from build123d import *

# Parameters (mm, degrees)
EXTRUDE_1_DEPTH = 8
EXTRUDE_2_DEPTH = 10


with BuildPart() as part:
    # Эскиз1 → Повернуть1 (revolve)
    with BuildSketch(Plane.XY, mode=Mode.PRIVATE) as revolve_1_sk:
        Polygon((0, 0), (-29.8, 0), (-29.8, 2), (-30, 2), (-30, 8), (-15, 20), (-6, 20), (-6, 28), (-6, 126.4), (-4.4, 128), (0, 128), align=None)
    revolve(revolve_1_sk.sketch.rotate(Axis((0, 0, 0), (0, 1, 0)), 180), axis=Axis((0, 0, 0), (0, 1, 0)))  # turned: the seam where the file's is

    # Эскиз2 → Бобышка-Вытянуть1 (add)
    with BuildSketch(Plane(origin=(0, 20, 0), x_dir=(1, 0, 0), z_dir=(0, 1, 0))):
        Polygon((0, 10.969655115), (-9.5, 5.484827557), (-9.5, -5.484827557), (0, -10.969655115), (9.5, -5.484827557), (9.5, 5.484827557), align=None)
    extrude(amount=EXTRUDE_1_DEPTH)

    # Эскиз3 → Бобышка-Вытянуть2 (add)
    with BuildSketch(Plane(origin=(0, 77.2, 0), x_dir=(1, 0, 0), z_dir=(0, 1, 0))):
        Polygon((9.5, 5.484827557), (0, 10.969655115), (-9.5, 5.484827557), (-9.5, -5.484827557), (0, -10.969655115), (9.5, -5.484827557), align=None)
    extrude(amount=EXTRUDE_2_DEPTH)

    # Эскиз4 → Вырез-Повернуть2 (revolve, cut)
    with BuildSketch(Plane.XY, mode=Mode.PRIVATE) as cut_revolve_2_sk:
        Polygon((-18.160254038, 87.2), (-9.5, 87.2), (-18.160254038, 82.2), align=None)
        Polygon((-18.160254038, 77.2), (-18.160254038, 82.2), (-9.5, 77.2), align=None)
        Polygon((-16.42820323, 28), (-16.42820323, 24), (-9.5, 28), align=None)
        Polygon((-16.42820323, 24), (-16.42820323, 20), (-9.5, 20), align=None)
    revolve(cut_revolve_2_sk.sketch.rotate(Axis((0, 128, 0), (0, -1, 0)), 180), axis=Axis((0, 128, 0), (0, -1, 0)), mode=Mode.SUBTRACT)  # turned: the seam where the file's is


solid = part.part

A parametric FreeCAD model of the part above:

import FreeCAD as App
import Part
import Sketcher
Q = App.Units.Quantity


def add_polygon(sketch, points):
    """Adds a closed chain of lines whose ends are joined by coincident constraints."""
    first, n = sketch.GeometryCount, len(points)
    for a, b in zip(points, points[1:] + points[:1]):
        sketch.addGeometry(Part.LineSegment(App.Vector(*a, 0), App.Vector(*b, 0)), False)
    for i in range(n):
        sketch.addConstraint(Sketcher.Constraint("Coincident", first + i, 2, first + (i + 1) % n, 1))

doc = App.newDocument("Part")
body = doc.addObject("PartDesign::Body", "Body")

sketch1 = body.newObject("Sketcher::SketchObject", "Sketch")
sketch1.AttachmentSupport = (doc.getObject("XY_Plane"), [""])
sketch1.MapMode = "FlatFace"
add_polygon(sketch1, [(-29.8, 0), (0, 0), (0, 128), (-4.4, 128), (-6, 126.4), (-6, 20), (-15, 20), (-30, 8), (-30, 2), (-29.8, 2)])
sketch1.addConstraint(Sketcher.Constraint("Horizontal", 0))
sketch1.addConstraint(Sketcher.Constraint("Vertical", 1))
sketch1.addConstraint(Sketcher.Constraint("Horizontal", 2))
sketch1.addConstraint(Sketcher.Constraint("Vertical", 4))
sketch1.addConstraint(Sketcher.Constraint("Horizontal", 5))
sketch1.addConstraint(Sketcher.Constraint("Vertical", 7))
sketch1.addConstraint(Sketcher.Constraint("Horizontal", 8))
sketch1.addConstraint(Sketcher.Constraint("Vertical", 9))
sketch1.addConstraint(Sketcher.Constraint("Coincident", 0, 2, -1, 1))
sketch1.addConstraint(Sketcher.Constraint("DistanceX", 5, 2, 5, 1, Q("9 mm")))
sketch1.addConstraint(Sketcher.Constraint("DistanceY", 1, 1, 1, 2, Q("128 mm")))
sketch1.addConstraint(Sketcher.Constraint("DistanceY", 7, 2, 7, 1, Q("6 mm")))
sketch1.addConstraint(Sketcher.Constraint("DistanceY", 9, 2, 9, 1, Q("2 mm")))
sketch1.addConstraint(Sketcher.Constraint("Angle", 3, Q("-135 deg")))
sketch1.addConstraint(Sketcher.Constraint("DistanceX", 0, 1, 0, 2, Q("29.8 mm")))
sketch1.addConstraint(Sketcher.Constraint("DistanceX", 2, 2, 2, 1, Q("4.4 mm")))
sketch1.addConstraint(Sketcher.Constraint("DistanceX", 8, 1, 8, 2, Q("0.2 mm")))
sketch1.addConstraint(Sketcher.Constraint("DistanceY", 4, 2, 4, 1, Q("106.4 mm")))
sketch1.addConstraint(Sketcher.Constraint("DistanceX", 3, 2, -1, 1, Q("6 mm")))
revolution = body.newObject("PartDesign::Revolution", "Revolution")
revolution.Profile = sketch1
revolution.ReferenceAxis = (sketch1, ["V_Axis"])
revolution.Angle = 360

sketch2 = body.newObject("Sketcher::SketchObject", "Sketch001")
sketch2.AttachmentSupport = (doc.getObject("XZ_Plane"), [""])
sketch2.MapMode = "FlatFace"
sketch2.AttachmentOffset = App.Placement(App.Vector(0, 0, -20), App.Rotation())
add_polygon(sketch2, [(0, -11), (-10, -5), (-10, 5), (0, 11), (10, 5), (10, -5)])
sketch2.addConstraint(Sketcher.Constraint("Vertical", 1))
sketch2.addConstraint(Sketcher.Constraint("Vertical", 4))
sketch2.addConstraint(Sketcher.Constraint("Symmetric", 0, 2, 3, 2, -1, 1))
sketch2.addConstraint(Sketcher.Constraint("Symmetric", 2, 2, 5, 2, -1, 1))
sketch2.addConstraint(Sketcher.Constraint("PointOnObject", 2, 2, -2))
sketch2.addConstraint(Sketcher.Constraint("Parallel", 2, 5))
sketch2.addConstraint(Sketcher.Constraint("Horizontal", 1, 2, 3, 2))
sketch2.addConstraint(Sketcher.Constraint("Angle", 0, Q("150 deg")))
sketch2.addConstraint(Sketcher.Constraint("DistanceX", 1, 2, 3, 2, Q("19 mm")))
sketch2.addConstraint(Sketcher.Constraint("DistanceY", 1, 1, 1, 2, Q("10.969655 mm")))
pad1 = body.newObject("PartDesign::Pad", "Pad")
pad1.Profile = sketch2
pad1.Length = 8
pad1.Reversed = True

sketch3 = body.newObject("Sketcher::SketchObject", "Sketch002")
sketch3.AttachmentSupport = (doc.getObject("XZ_Plane"), [""])
sketch3.MapMode = "FlatFace"
sketch3.AttachmentOffset = App.Placement(App.Vector(0, 0, -77.2), App.Rotation())
add_polygon(sketch3, [(10, -5), (0, -11), (-10, -5), (-10, 5), (0, 11), (10, 5)])
sketch3.addConstraint(Sketcher.Constraint("Vertical", 2))
sketch3.addConstraint(Sketcher.Constraint("Vertical", 5))
sketch3.addConstraint(Sketcher.Constraint("Symmetric", 0, 2, 3, 2, -1, 1))
sketch3.addConstraint(Sketcher.Constraint("Symmetric", 1, 2, 4, 2, -1, 1))
sketch3.addConstraint(Sketcher.Constraint("PointOnObject", 0, 2, -2))
sketch3.addConstraint(Sketcher.Constraint("Parallel", 0, 3))
sketch3.addConstraint(Sketcher.Constraint("Horizontal", 2, 2, 4, 2))
sketch3.addConstraint(Sketcher.Constraint("Angle", 0, Q("-150 deg")))
sketch3.addConstraint(Sketcher.Constraint("DistanceX", 2, 2, 4, 2, Q("19 mm")))
sketch3.addConstraint(Sketcher.Constraint("DistanceY", 2, 1, 2, 2, Q("10.969655 mm")))
pad2 = body.newObject("PartDesign::Pad", "Pad001")
pad2.Profile = sketch3
pad2.Length = 10
pad2.Reversed = True

sketch4 = body.newObject("Sketcher::SketchObject", "Sketch003")
sketch4.AttachmentSupport = (doc.getObject("XY_Plane"), [""])
sketch4.MapMode = "FlatFace"
add_polygon(sketch4, [(-9.5, 87.2), (-18.2, 87.2), (-18.2, 82.2)])
add_polygon(sketch4, [(-18.2, 82.2), (-18.2, 77.2), (-9.5, 77.2)])
add_polygon(sketch4, [(-16.4, 28), (-16.4, 24), (-9.5, 28)])
add_polygon(sketch4, [(-16.4, 24), (-16.4, 20), (-9.5, 20)])
sketch4.addConstraint(Sketcher.Constraint("Horizontal", 0))
sketch4.addConstraint(Sketcher.Constraint("Vertical", 1))
sketch4.addConstraint(Sketcher.Constraint("Vertical", 3))
sketch4.addConstraint(Sketcher.Constraint("Horizontal", 4))
sketch4.addConstraint(Sketcher.Constraint("Vertical", 6))
sketch4.addConstraint(Sketcher.Constraint("Horizontal", 8))
sketch4.addConstraint(Sketcher.Constraint("Vertical", 9))
sketch4.addConstraint(Sketcher.Constraint("Horizontal", 10))
sketch4.addConstraint(Sketcher.Constraint("Coincident", 5, 2, 1, 2))
sketch4.addConstraint(Sketcher.Constraint("Coincident", 11, 2, 6, 2))
sketch4.addConstraint(Sketcher.Constraint("Parallel", 2, 7))
sketch4.addConstraint(Sketcher.Constraint("Parallel", 5, 11))
sketch4.addConstraint(Sketcher.Constraint("Vertical", 2, 2, 4, 2))
sketch4.addConstraint(Sketcher.Constraint("Vertical", 4, 2, 7, 2))
sketch4.addConstraint(Sketcher.Constraint("Vertical", 7, 2, 10, 2))
sketch4.addConstraint(Sketcher.Constraint("Equal", 1, 3))
sketch4.addConstraint(Sketcher.Constraint("DistanceY", 1, 2, 1, 1, Q("5 mm")))
sketch4.addConstraint(Sketcher.Constraint("DistanceY", 6, 2, 6, 1, Q("4 mm")))
sketch4.addConstraint(Sketcher.Constraint("Angle", 2, Q("30 deg")))
sketch4.addConstraint(Sketcher.Constraint("DistanceY", -1, 1, 6, 2, Q("24 mm")))
sketch4.addConstraint(Sketcher.Constraint("DistanceY", -1, 1, 0, 2, Q("87.2 mm")))
sketch4.addConstraint(Sketcher.Constraint("DistanceX", 2, 2, -1, 1, Q("9.5 mm")))
groove = body.newObject("PartDesign::Groove", "Groove")
groove.Profile = sketch4
groove.ReferenceAxis = (sketch4, ["V_Axis"])
groove.Angle = 360

doc.recompute()
